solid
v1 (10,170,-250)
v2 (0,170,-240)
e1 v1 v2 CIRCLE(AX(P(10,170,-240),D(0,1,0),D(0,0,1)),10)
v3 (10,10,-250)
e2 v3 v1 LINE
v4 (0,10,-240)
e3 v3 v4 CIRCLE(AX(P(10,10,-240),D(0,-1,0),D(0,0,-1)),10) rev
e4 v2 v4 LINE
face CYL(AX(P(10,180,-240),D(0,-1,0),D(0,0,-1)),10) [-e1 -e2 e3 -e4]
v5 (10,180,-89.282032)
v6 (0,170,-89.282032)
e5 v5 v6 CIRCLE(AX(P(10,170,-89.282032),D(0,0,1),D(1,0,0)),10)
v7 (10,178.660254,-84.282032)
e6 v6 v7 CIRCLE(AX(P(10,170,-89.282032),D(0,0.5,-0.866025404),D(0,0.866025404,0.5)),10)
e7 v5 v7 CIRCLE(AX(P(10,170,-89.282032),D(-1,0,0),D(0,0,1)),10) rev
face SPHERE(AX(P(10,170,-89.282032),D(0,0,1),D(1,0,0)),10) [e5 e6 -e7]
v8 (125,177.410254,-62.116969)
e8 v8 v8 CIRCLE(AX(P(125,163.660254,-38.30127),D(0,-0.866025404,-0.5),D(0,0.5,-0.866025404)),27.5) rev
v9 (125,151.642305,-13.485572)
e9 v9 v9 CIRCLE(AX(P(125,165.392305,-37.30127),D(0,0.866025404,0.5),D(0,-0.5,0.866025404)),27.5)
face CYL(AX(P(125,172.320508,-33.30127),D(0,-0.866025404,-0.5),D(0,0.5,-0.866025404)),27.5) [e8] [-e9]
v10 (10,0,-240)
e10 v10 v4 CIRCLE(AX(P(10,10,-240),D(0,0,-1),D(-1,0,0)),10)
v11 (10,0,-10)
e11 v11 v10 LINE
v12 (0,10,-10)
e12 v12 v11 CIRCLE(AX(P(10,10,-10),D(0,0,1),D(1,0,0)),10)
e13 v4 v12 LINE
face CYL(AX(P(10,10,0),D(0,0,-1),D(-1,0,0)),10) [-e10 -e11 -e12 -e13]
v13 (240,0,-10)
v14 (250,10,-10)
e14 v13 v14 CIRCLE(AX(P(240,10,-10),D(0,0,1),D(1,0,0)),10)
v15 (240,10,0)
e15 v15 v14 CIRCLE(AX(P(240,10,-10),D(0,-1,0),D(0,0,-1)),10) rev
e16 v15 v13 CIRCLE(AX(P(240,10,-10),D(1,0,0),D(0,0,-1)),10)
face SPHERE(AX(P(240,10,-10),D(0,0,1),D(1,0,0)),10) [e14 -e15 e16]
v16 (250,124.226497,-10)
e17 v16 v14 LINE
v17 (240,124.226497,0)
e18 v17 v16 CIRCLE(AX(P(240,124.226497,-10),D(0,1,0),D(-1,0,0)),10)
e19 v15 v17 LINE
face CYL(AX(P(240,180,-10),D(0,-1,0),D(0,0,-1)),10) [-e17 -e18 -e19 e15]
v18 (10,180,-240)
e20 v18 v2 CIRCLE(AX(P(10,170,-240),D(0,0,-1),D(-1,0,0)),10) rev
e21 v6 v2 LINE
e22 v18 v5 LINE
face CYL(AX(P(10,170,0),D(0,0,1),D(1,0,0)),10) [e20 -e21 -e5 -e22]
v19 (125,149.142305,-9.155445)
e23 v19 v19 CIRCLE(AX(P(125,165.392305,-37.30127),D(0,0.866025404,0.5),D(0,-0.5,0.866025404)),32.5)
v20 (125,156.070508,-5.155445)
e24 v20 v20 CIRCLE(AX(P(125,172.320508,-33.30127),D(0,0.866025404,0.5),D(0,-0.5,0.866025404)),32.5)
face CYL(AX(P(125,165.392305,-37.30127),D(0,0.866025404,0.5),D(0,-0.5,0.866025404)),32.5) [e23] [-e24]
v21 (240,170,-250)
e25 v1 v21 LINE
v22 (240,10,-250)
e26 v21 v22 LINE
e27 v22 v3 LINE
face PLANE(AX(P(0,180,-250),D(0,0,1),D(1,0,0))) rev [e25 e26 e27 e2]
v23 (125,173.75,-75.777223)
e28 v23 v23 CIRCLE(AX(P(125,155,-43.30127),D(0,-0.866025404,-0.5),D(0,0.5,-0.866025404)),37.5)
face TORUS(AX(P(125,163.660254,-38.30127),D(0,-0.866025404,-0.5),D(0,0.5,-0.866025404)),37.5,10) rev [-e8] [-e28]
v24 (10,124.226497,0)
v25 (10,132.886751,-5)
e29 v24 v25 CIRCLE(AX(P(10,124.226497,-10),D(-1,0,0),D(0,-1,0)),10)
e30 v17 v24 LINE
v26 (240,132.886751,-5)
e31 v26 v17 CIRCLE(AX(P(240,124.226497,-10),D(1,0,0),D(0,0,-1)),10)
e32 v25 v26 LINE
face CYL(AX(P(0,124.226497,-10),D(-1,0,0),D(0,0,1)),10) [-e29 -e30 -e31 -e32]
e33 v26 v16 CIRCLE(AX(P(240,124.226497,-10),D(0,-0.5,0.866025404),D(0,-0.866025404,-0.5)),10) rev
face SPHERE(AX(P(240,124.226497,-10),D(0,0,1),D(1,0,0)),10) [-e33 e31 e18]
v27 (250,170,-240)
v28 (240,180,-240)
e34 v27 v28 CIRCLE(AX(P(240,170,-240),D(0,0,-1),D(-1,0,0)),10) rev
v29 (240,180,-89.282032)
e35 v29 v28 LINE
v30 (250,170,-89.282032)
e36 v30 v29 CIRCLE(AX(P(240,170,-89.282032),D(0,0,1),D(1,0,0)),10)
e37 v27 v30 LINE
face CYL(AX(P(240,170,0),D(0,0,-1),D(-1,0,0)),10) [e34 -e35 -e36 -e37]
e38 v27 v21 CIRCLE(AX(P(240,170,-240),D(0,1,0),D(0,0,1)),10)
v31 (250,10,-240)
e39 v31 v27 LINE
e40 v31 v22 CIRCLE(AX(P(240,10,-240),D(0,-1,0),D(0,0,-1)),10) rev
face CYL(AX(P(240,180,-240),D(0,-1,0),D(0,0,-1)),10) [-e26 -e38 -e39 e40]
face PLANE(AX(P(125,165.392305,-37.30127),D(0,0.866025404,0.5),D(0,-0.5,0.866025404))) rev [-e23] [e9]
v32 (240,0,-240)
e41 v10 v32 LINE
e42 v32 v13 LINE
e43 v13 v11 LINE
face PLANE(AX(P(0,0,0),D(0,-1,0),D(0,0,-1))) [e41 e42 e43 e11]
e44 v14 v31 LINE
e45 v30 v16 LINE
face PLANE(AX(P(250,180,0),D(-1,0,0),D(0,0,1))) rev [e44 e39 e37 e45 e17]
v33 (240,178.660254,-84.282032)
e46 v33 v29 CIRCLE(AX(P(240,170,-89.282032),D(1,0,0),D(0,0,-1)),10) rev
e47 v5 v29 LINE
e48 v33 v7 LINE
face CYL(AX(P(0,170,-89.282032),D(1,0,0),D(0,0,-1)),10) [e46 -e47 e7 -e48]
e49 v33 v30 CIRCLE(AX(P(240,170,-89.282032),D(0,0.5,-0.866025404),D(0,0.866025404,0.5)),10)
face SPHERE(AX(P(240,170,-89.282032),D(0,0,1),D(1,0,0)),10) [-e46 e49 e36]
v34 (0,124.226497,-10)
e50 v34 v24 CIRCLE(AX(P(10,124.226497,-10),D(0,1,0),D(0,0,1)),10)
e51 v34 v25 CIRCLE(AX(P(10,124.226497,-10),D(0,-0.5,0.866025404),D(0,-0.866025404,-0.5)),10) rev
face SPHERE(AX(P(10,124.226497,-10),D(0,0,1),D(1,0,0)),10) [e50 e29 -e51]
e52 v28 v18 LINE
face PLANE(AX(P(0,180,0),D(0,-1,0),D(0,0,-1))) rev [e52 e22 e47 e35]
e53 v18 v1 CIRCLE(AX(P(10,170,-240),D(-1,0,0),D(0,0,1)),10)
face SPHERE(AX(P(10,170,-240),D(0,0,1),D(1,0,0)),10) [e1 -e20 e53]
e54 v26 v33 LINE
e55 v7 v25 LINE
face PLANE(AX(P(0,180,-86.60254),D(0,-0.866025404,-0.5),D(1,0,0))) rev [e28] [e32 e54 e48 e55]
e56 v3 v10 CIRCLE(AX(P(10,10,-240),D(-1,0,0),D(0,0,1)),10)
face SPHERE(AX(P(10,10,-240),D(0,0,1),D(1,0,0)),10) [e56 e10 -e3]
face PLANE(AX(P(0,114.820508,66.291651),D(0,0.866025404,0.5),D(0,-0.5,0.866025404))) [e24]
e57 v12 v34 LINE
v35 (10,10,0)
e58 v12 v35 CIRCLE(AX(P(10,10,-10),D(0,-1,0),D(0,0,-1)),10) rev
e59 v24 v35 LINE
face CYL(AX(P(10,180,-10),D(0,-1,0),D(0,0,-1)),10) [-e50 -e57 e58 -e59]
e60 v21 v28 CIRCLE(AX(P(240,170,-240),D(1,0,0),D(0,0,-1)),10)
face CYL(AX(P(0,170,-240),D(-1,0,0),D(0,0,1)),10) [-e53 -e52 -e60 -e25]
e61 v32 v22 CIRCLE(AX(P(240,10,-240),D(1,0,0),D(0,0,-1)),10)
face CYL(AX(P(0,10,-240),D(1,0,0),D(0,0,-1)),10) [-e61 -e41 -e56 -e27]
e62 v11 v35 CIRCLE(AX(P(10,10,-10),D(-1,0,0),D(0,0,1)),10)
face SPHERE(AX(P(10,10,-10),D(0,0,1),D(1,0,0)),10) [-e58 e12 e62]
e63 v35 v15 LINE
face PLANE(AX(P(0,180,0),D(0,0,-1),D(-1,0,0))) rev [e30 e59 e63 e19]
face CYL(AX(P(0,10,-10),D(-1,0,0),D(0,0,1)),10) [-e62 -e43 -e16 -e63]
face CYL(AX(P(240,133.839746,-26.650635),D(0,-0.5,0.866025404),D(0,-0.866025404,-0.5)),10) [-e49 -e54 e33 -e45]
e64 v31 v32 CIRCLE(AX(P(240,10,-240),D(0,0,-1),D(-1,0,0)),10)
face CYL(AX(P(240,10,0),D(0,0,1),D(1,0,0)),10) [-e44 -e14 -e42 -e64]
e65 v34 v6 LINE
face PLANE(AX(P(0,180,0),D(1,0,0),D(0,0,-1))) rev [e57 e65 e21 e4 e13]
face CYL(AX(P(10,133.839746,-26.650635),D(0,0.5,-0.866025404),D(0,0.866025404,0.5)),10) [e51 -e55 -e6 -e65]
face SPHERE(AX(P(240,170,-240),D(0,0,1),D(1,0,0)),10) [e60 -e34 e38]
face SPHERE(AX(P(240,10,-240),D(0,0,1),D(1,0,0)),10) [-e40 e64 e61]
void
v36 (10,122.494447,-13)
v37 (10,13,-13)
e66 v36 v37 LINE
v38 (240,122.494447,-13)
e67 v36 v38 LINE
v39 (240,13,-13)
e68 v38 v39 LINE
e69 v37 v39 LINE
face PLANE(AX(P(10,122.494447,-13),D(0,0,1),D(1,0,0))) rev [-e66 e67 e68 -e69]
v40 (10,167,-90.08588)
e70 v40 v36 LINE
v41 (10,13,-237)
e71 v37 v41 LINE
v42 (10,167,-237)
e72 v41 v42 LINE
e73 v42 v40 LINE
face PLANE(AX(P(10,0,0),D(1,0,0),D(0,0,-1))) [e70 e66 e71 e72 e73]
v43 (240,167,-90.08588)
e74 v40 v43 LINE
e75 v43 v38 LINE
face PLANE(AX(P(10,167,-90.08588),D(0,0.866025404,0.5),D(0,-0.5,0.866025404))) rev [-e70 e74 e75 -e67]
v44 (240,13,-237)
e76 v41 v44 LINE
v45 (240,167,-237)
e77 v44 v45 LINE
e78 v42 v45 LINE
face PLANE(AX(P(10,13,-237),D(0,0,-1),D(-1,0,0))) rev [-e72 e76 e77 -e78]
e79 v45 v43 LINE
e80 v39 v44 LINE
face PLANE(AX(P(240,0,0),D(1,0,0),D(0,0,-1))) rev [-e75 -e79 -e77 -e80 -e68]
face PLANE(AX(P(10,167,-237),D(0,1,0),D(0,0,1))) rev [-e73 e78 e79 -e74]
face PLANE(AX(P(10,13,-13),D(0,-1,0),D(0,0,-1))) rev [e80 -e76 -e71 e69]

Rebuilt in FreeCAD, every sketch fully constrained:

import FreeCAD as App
import Part
import Sketcher
Q = App.Units.Quantity


def edges_at(feature, points):
    """Names of the edges that pass closest to the given points."""
    edges = feature.Shape.Edges
    near = lambda p: min(range(len(edges)), key=lambda i: edges[i].distToShape(Part.Vertex(*p))[0])
    return sorted({f"Edge{near(p) + 1}" for p in points})


def add_polygon(sketch, points):
    """Adds a closed chain of lines whose ends are joined by coincident constraints."""
    first, n = sketch.GeometryCount, len(points)
    for a, b in zip(points, points[1:] + points[:1]):
        sketch.addGeometry(Part.LineSegment(App.Vector(*a, 0), App.Vector(*b, 0)), False)
    for i in range(n):
        sketch.addConstraint(Sketcher.Constraint("Coincident", first + i, 2, first + (i + 1) % n, 1))

doc = App.newDocument("Part")
params = doc.addObject("Spreadsheet::Sheet", "Params")
for row, (alias, value) in enumerate([
    ("sketch1_width", "250 mm"),
    ("pad1_length", "180 mm"),
    ("chamfer_size", "50 mm"),
    ("chamfer_size2", "86.60254 mm"),
    ("sketch2_diameter", "55 mm"),
    ("pad2_length", "20 mm"),
    ("sketch3_diameter", "65 mm"),
    ("sketch3_diameter2", "55 mm"),
    ("pad3_length", "8 mm"),
    ("fillet_radius", "10 mm"),
    ("sketch4_width", "154 mm"),
    ("sketch4_height", "224 mm"),
    ("pocket1_length", "230 mm"),
], start=1):
    params.set(f"A{row}", alias)
    params.set(f"B{row}", "=" + value)
    params.setAlias(f"B{row}", alias)

body = doc.addObject("PartDesign::Body", "Body")

sketch1 = body.newObject("Sketcher::SketchObject", "Sketch")
sketch1.AttachmentSupport = (doc.getObject("XZ_Plane"), [""])
sketch1.MapMode = "FlatFace"
add_polygon(sketch1, [(0, -250), (0, 0), (250, 0), (250, -250)])
sketch1.addConstraint([
    Sketcher.Constraint("Vertical", 0),
    Sketcher.Constraint("Horizontal", 1),
    Sketcher.Constraint("Vertical", 2),
    Sketcher.Constraint("Horizontal", 3),
    Sketcher.Constraint("Coincident", 0, 2, -1, 1),
    Sketcher.Constraint("Equal", 3, 0),
    Sketcher.Constraint("DistanceX", 1, 1, 1, 2, Q("250 mm")),
])
sketch1.setExpression("Constraints[10]", "Params.sketch1_width")
pad1 = body.newObject("PartDesign::Pad", "Pad")
pad1.Profile = sketch1
pad1.setExpression("Length", "Params.pad1_length")
pad1.Reversed = True
doc.recompute()

chamfer = body.newObject("PartDesign::Chamfer", "Chamfer")
chamfer.Base = (pad1, edges_at(pad1, [(125, 180, 0)]))
chamfer.ChamferType = "Two distances"
chamfer.setExpression("Size", "Params.chamfer_size")
chamfer.setExpression("Size2", "Params.chamfer_size2")

sketch2 = body.newObject("Sketcher::SketchObject", "Sketch001")
sketch2.Placement = App.Placement(App.Vector(0, 97.5, 56.291651), App.Rotation(App.Vector(1, 0, 0), App.Vector(0, 0.5, -0.866025404), App.Vector(0, 0.866025404, 0.5), "ZXY"))
sketch2.addGeometry(Part.Circle(App.Vector(125, 115, 0), App.Vector(0, 0, 1), 27.5), False)
sketch2.addConstraint([
    Sketcher.Constraint("Diameter", 0, Q("55 mm")),
    Sketcher.Constraint("DistanceX", -1, 1, 0, 3, Q("125 mm")),
    Sketcher.Constraint("DistanceY", -1, 1, 0, 3, Q("115 mm")),
])
sketch2.setExpression("Constraints[0]", "Params.sketch2_diameter")
pad2 = body.newObject("PartDesign::Pad", "Pad001")
pad2.Profile = sketch2
pad2.setExpression("Length", "Params.pad2_length")

sketch3 = body.newObject("Sketcher::SketchObject", "Sketch002")
sketch3.Placement = App.Placement(App.Vector(0, 114.820508, 66.291651), App.Rotation(App.Vector(1, 0, 0), App.Vector(0, 0.5, -0.866025404), App.Vector(0, 0.866025404, 0.5), "ZXY"))
sketch3.addGeometry([
    Part.Circle(App.Vector(125, 115, 0), App.Vector(0, 0, 1), 32.5),
    Part.Circle(App.Vector(125, 115, 0), App.Vector(0, 0, 1), 27.5),
], False)
sketch3.addConstraint([
    Sketcher.Constraint("Coincident", 1, 3, 0, 3),
    Sketcher.Constraint("Diameter", 0, Q("65 mm")),
    Sketcher.Constraint("Diameter", 1, Q("55 mm")),
    Sketcher.Constraint("DistanceX", -1, 1, 0, 3, Q("125 mm")),
    Sketcher.Constraint("DistanceY", -1, 1, 0, 3, Q("115 mm")),
])
sketch3.setExpression("Constraints[1]", "Params.sketch3_diameter")
sketch3.setExpression("Constraints[2]", "Params.sketch3_diameter2")
pad3 = body.newObject("PartDesign::Pad", "Pad002")
pad3.Profile = sketch3
pad3.setExpression("Length", "Params.pad3_length")
pad3.Reversed = True
doc.recompute()

fillet = body.newObject("PartDesign::Fillet", "Fillet")
fillet.Base = (pad3, edges_at(pad3, [
    (125, 180, -250),
    (250, 180, -168.301),
    (125, 180, -86.603),
    (250, 65, 0),
    (250, 155, -43.301),
    (0, 65, 0),
    (125, 130, 0),
    (0, 155, -43.301),
    (97.5, 155, -43.301),
    (0, 180, -168.301),
    (125, 0, -250),
    (250, 0, -125),
    (125, 0, 0),
    (0, 0, -125),
    (0, 90, -250),
    (250, 90, -250),
]))
fillet.setExpression("Radius", "Params.fillet_radius")

sketch4 = body.newObject("Sketcher::SketchObject", "Sketch003")
sketch4.AttachmentSupport = (doc.getObject("YZ_Plane"), [""])
sketch4.MapMode = "FlatFace"
sketch4.AttachmentOffset = App.Placement(App.Vector(0, 0, 240), App.Rotation())
add_polygon(sketch4, [(13, -237), (167, -237), (167, -90.08588), (122.494447, -13), (13, -13)])
sketch4.addConstraint([
    Sketcher.Constraint("Horizontal", 0),
    Sketcher.Constraint("Vertical", 1),
    Sketcher.Constraint("Horizontal", 3),
    Sketcher.Constraint("Vertical", 4),
    Sketcher.Constraint("DistanceX", 0, 1, 0, 2, Q("154 mm")),
    Sketcher.Constraint("DistanceY", 4, 2, 4, 1, Q("224 mm")),
    Sketcher.Constraint("Angle", 2, Q("120 deg")),
    Sketcher.Constraint("DistanceX", -1, 1, 0, 2, Q("167 mm")),
    Sketcher.Constraint("DistanceY", 0, 2, -1, 1, Q("237 mm")),
    Sketcher.Constraint("DistanceY", 1, 1, 1, 2, Q("146.91412 mm")),
])
sketch4.setExpression("Constraints[9]", "Params.sketch4_width")
sketch4.setExpression("Constraints[10]", "Params.sketch4_height")
pocket1 = body.newObject("PartDesign::Pocket", "Pocket")
pocket1.Profile = sketch4
pocket1.setExpression("Length", "Params.pocket1_length")

doc.recompute()
